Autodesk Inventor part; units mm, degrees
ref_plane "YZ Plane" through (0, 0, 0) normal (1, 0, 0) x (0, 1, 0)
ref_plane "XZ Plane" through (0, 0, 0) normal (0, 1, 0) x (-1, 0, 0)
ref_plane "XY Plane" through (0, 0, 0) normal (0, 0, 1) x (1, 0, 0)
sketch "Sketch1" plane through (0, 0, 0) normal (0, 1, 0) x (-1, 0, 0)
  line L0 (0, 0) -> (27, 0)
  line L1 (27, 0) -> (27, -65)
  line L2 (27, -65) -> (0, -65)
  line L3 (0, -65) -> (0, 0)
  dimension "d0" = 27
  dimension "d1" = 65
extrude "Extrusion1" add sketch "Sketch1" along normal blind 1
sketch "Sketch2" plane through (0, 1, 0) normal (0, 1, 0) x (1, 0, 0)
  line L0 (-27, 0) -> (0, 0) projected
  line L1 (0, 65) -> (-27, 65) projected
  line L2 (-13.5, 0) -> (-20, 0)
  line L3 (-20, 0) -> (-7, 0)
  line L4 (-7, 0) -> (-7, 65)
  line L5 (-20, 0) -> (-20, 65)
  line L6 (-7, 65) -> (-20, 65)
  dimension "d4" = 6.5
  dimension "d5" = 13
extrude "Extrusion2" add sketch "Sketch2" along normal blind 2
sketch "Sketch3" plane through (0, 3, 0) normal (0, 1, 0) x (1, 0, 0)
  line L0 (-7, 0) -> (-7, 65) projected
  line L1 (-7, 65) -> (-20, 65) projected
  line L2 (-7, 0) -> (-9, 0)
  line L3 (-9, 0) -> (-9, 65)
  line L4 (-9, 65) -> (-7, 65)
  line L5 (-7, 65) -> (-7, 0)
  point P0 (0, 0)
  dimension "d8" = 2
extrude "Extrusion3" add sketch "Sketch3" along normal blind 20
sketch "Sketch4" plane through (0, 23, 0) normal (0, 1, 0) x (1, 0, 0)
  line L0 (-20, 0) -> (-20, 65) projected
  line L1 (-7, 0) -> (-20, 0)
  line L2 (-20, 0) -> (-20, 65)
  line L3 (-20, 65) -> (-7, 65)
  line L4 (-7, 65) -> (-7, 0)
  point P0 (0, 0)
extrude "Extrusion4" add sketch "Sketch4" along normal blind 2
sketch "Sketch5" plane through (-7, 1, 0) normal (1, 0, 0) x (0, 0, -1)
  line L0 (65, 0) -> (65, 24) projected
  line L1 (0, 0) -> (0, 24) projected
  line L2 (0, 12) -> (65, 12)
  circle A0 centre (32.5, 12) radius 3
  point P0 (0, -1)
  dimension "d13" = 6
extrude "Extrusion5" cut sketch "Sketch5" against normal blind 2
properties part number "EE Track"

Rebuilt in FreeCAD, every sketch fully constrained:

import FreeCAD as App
import Part
import Sketcher
from FreeCAD import Vector


def add_polygon(sketch, points):
    """Adds a closed chain of lines whose ends are joined by coincident constraints."""
    first, n = sketch.GeometryCount, len(points)
    for a, b in zip(points, points[1:] + points[:1]):
        sketch.addGeometry(Part.LineSegment(App.Vector(*a, 0), App.Vector(*b, 0)), False)
    for i in range(n):
        sketch.addConstraint(Sketcher.Constraint("Coincident", first + i, 2, first + (i + 1) % n, 1))

doc = App.newDocument("Part")
body = doc.addObject("PartDesign::Body", "Body")

sketch1 = body.newObject("Sketcher::SketchObject", "Sketch")
sketch1.AttachmentSupport = (doc.getObject("XZ_Plane"), [""])
sketch1.MapMode = "FlatFace"
add_polygon(sketch1, [(-27, 0), (0, 0), (0, -65), (-27, -65)])
sketch1.addConstraint([
    Sketcher.Constraint("Horizontal", 0),
    Sketcher.Constraint("Vertical", 1),
    Sketcher.Constraint("Horizontal", 2),
    Sketcher.Constraint("Vertical", 3),
    Sketcher.Constraint("Coincident", 0, 2, -1, 1),
    Sketcher.Constraint("DistanceX", 0, 1, 0, 2, 27.0),
    Sketcher.Constraint("DistanceY", 1, 2, 1, 1, 65.0),
])
pad1 = body.newObject("PartDesign::Pad", "Pad")
pad1.Profile = sketch1
pad1.Length = 1
pad1.Reversed = True

sketch2 = body.newObject("Sketcher::SketchObject", "Sketch001")
sketch2.AttachmentSupport = (doc.getObject("XZ_Plane"), [""])
sketch2.MapMode = "FlatFace"
sketch2.AttachmentOffset = App.Placement(Vector(0, 0, -1), App.Rotation())
add_polygon(sketch2, [(-20, -65), (-20, 0), (-7, 0), (-7, -65)])
sketch2.addConstraint([
    Sketcher.Constraint("Vertical", 0),
    Sketcher.Constraint("Horizontal", 1),
    Sketcher.Constraint("Vertical", 2),
    Sketcher.Constraint("Horizontal", 3),
    Sketcher.Constraint("PointOnObject", 0, 2, -1),
    Sketcher.Constraint("DistanceX", 1, 1, 1, 2, 13.0),
    Sketcher.Constraint("DistanceY", 0, 1, 0, 2, 65.0),
    Sketcher.Constraint("DistanceX", 0, 2, -1, 1, 20.0),
])
pad2 = body.newObject("PartDesign::Pad", "Pad001")
pad2.Profile = sketch2
pad2.Length = 2
pad2.Reversed = True

sketch3 = body.newObject("Sketcher::SketchObject", "Sketch002")
sketch3.AttachmentSupport = (doc.getObject("XZ_Plane"), [""])
sketch3.MapMode = "FlatFace"
sketch3.AttachmentOffset = App.Placement(Vector(0, 0, -3), App.Rotation())
add_polygon(sketch3, [(-9, 0), (-7, 0), (-7, -65), (-9, -65)])
sketch3.addConstraint([
    Sketcher.Constraint("Horizontal", 0),
    Sketcher.Constraint("Vertical", 1),
    Sketcher.Constraint("Horizontal", 2),
    Sketcher.Constraint("Vertical", 3),
    Sketcher.Constraint("PointOnObject", 0, 2, -1),
    Sketcher.Constraint("DistanceX", 0, 1, 0, 2, 2.0),
    Sketcher.Constraint("DistanceY", 1, 2, 1, 1, 65.0),
    Sketcher.Constraint("DistanceX", 0, 2, -1, 1, 7.0),
])
pad3 = body.newObject("PartDesign::Pad", "Pad002")
pad3.Profile = sketch3
pad3.Length = 20
pad3.Reversed = True

sketch4 = body.newObject("Sketcher::SketchObject", "Sketch003")
sketch4.AttachmentSupport = (doc.getObject("XZ_Plane"), [""])
sketch4.MapMode = "FlatFace"
sketch4.AttachmentOffset = App.Placement(Vector(0, 0, -23), App.Rotation())
add_polygon(sketch4, [(-20, -65), (-20, 0), (-7, 0), (-7, -65)])
sketch4.addConstraint([
    Sketcher.Constraint("Vertical", 0),
    Sketcher.Constraint("Horizontal", 1),
    Sketcher.Constraint("Vertical", 2),
    Sketcher.Constraint("Horizontal", 3),
    Sketcher.Constraint("PointOnObject", 0, 2, -1),
    Sketcher.Constraint("DistanceX", 1, 1, 1, 2, 13.0),
    Sketcher.Constraint("DistanceY", 0, 1, 0, 2, 65.0),
    Sketcher.Constraint("DistanceX", 0, 2, -1, 1, 20.0),
])
pad4 = body.newObject("PartDesign::Pad", "Pad003")
pad4.Profile = sketch4
pad4.Length = 2
pad4.Reversed = True

sketch5 = body.newObject("Sketcher::SketchObject", "Sketch004")
sketch5.AttachmentSupport = (doc.getObject("YZ_Plane"), [""])
sketch5.MapMode = "FlatFace"
sketch5.AttachmentOffset = App.Placement(Vector(0, 0, -7), App.Rotation())
sketch5.addGeometry(Part.Circle(Vector(13, -32.5, 0), Vector(0, 0, 1), 3), False)
sketch5.addConstraint([
    Sketcher.Constraint("Diameter", 0, 6.0),
    Sketcher.Constraint("DistanceX", -1, 1, 0, 3, 13.0),
    Sketcher.Constraint("DistanceY", 0, 3, -1, 1, 32.5),
])
pocket1 = body.newObject("PartDesign::Pocket", "Pocket")
pocket1.Profile = sketch5
pocket1.Length = 2

doc.recompute()
